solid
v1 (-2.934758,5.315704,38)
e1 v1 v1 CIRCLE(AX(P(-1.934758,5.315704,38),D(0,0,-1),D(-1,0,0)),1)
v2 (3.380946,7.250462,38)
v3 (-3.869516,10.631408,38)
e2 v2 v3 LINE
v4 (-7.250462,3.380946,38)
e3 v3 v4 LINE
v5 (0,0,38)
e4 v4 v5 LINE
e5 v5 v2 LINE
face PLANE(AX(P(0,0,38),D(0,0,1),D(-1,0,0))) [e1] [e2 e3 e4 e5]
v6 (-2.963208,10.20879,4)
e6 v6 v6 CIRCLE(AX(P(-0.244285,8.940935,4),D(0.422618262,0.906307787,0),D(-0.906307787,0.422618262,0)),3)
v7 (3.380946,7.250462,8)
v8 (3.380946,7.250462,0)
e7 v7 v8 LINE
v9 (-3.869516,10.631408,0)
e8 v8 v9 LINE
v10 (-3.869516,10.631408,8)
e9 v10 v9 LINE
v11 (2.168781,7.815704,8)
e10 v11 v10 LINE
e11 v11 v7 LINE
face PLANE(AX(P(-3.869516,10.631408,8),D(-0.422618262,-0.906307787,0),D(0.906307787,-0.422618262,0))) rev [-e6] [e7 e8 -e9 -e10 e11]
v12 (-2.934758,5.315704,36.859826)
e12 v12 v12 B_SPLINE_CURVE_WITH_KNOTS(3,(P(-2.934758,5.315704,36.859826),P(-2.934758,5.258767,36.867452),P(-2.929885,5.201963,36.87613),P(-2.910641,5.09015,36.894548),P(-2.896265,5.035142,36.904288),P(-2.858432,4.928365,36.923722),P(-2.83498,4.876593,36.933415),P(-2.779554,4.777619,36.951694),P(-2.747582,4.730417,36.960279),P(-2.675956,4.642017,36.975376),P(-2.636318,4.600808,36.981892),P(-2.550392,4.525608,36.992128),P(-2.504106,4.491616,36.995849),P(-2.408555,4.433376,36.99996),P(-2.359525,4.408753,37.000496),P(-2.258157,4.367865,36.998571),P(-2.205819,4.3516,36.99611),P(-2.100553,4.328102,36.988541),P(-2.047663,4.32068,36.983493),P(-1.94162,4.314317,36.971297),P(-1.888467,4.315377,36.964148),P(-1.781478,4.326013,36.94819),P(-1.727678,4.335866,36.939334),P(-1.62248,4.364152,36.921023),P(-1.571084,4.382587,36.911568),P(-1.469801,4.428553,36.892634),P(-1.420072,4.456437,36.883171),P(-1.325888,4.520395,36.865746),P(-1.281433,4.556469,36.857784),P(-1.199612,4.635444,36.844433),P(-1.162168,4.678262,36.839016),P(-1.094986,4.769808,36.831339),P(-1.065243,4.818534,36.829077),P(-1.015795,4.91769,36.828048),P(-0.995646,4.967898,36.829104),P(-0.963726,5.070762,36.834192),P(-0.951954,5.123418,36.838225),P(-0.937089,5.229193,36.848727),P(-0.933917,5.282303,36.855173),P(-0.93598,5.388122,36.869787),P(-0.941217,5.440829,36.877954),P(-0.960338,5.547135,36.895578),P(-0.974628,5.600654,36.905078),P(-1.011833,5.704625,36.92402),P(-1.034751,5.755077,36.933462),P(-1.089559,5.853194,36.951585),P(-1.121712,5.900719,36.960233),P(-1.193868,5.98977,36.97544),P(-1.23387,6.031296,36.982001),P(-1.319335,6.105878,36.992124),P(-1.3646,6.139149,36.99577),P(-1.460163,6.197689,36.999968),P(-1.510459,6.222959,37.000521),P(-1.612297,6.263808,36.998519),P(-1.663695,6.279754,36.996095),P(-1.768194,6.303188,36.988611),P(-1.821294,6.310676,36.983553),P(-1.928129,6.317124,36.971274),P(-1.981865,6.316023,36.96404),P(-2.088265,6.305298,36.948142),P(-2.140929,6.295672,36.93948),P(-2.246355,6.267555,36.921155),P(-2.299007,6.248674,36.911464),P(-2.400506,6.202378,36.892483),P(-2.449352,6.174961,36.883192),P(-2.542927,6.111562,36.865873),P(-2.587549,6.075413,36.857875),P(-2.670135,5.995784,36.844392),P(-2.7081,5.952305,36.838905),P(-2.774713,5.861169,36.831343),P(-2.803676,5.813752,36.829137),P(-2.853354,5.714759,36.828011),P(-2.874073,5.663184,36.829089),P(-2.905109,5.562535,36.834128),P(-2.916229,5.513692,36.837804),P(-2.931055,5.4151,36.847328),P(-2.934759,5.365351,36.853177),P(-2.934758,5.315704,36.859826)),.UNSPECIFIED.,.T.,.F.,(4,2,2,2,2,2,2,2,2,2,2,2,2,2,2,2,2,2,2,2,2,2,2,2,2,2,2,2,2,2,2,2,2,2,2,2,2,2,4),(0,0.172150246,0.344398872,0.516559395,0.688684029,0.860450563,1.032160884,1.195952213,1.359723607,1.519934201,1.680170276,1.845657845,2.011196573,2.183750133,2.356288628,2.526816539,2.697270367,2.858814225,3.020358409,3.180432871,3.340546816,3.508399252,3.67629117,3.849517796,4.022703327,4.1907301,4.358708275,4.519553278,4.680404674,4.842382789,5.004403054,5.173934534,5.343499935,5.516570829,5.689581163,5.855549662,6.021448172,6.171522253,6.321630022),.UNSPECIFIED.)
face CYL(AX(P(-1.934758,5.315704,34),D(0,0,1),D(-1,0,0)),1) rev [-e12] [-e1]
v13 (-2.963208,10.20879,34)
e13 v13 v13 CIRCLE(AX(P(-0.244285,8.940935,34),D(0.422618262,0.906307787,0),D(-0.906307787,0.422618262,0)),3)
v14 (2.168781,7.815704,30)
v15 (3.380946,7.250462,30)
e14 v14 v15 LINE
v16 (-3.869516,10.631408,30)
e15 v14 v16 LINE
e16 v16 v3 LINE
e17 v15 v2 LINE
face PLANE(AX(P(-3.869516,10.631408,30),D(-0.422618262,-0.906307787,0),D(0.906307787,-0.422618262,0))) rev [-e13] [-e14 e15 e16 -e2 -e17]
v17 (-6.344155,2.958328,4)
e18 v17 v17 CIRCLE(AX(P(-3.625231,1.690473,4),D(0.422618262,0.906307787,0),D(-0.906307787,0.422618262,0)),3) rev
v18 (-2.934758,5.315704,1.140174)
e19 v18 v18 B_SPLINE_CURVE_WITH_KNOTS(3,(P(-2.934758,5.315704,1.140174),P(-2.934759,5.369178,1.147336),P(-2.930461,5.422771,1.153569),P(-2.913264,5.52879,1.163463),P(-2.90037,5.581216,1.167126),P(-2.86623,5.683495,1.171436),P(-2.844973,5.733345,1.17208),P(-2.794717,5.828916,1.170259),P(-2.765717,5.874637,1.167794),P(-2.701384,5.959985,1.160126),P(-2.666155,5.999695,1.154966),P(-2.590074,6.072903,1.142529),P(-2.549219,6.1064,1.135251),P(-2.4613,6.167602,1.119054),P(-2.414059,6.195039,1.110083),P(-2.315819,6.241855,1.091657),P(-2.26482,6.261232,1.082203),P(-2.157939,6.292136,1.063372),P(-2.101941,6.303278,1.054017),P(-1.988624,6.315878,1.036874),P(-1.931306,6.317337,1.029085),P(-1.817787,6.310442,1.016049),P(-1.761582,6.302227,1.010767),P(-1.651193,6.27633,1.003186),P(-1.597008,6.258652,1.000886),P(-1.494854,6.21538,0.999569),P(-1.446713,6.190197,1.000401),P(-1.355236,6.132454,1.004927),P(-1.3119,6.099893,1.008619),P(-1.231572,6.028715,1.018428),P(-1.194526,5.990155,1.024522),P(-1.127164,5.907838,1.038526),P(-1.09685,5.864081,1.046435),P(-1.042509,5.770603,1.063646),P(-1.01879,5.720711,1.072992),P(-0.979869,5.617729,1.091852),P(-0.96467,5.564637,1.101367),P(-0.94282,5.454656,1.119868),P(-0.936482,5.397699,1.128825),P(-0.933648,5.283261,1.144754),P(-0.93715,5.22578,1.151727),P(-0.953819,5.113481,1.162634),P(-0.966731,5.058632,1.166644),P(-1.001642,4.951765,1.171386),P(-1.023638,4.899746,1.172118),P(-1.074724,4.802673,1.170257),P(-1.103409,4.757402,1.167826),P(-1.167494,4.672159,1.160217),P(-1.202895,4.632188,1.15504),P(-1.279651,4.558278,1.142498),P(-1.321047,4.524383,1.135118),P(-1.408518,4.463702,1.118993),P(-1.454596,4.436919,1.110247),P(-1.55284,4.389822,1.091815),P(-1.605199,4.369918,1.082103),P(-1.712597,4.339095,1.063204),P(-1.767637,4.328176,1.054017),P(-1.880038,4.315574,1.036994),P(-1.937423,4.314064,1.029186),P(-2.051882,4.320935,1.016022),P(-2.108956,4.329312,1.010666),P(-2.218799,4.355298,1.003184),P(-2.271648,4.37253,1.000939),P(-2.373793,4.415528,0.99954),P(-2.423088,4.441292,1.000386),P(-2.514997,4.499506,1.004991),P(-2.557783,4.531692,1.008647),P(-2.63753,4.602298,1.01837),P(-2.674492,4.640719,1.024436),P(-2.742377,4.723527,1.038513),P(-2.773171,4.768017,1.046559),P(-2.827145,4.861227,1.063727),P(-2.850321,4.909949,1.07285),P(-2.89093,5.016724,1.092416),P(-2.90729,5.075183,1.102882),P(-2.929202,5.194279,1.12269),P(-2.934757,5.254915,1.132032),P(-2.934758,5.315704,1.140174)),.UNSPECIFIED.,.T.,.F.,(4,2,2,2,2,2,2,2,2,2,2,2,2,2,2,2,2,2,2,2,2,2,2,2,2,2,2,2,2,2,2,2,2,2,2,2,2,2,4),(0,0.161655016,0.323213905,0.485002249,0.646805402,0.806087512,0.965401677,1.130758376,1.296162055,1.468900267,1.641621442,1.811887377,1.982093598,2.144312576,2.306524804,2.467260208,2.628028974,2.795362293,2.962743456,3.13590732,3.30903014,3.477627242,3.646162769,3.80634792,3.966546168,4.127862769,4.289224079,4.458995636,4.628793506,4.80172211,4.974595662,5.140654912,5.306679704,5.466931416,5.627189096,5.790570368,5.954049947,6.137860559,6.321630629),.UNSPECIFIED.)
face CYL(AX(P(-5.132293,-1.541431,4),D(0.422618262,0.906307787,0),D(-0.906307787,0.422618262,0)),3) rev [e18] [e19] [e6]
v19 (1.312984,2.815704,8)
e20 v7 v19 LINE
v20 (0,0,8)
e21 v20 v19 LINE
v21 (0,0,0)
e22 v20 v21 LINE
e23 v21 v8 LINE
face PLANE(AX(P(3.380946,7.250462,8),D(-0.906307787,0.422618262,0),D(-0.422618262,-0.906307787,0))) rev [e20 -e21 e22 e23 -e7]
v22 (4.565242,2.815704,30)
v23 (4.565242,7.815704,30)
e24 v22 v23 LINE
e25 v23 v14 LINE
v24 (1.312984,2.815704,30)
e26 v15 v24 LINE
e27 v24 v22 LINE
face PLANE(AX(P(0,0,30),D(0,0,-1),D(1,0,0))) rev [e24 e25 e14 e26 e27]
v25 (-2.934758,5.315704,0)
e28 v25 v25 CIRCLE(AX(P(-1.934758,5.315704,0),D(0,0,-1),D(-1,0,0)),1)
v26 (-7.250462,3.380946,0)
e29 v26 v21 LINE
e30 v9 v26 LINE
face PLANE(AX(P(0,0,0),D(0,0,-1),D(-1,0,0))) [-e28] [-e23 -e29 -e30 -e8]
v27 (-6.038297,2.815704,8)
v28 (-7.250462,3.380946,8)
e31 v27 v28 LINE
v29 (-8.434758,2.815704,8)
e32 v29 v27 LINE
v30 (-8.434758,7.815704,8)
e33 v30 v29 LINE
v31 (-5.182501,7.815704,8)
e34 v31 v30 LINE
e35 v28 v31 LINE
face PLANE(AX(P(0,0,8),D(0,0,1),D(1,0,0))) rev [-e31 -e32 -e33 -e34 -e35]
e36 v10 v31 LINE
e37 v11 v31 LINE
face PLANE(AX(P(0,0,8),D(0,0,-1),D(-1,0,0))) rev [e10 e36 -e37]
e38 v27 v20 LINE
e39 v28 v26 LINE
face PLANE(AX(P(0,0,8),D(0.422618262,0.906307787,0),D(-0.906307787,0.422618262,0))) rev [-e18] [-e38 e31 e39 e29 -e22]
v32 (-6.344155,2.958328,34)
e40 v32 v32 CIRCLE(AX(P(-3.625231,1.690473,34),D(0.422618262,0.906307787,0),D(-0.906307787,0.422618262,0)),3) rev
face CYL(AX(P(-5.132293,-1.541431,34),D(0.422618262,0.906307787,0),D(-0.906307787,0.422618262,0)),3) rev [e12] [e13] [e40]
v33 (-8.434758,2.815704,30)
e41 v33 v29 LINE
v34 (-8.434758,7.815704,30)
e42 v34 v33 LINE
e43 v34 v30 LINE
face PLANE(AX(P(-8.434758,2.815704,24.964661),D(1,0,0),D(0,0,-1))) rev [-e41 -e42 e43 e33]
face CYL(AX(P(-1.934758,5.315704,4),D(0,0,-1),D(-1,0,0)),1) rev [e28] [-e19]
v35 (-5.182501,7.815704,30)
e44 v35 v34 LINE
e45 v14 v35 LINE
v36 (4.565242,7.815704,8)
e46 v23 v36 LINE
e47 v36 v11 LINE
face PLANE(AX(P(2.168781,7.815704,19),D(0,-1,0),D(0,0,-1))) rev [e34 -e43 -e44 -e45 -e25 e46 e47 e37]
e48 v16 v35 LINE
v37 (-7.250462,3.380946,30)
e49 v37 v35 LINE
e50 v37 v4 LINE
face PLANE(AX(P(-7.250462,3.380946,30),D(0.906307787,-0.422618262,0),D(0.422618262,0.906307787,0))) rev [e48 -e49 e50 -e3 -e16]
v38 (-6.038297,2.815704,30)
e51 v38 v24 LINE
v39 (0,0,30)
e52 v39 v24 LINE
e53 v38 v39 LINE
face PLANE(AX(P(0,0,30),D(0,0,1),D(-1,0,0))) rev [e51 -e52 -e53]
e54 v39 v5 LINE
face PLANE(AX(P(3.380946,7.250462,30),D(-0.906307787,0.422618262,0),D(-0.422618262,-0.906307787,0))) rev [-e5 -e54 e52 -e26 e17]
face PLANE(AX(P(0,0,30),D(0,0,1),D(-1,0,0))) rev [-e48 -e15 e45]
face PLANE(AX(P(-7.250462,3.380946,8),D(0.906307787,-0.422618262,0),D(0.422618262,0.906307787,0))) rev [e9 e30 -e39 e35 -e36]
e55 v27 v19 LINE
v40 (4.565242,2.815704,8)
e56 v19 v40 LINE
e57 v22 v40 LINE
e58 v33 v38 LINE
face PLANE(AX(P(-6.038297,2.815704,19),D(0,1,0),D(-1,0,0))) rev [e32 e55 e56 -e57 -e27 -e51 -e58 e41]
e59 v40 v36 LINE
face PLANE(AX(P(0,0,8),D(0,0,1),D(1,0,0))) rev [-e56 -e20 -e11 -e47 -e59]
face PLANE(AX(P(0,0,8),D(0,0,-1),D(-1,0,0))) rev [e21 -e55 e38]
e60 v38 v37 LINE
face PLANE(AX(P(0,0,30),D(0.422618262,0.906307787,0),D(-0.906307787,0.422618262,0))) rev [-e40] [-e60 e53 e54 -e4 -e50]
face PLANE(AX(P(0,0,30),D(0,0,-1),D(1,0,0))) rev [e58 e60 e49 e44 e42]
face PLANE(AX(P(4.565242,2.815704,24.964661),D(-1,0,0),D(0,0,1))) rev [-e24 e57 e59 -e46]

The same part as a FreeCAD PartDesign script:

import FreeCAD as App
import Part
import Sketcher

V = App.Vector
Q = App.Units.Quantity

doc = App.newDocument("Part")
body = doc.addObject("PartDesign::Body", "Body")

# Sketch on XY plane
sketch1 = body.newObject("Sketcher::SketchObject", "Sketch")
sketch1.AttachmentSupport = (doc.getObject("XY_Plane"), [""])
sketch1.MapMode = "FlatFace"
sketch1.addGeometry([
    Part.LineSegment(V(-7, 3, 0), V(0, 0, 0)),
    Part.LineSegment(V(0, 0, 0), V(3, 7, 0)),
    Part.LineSegment(V(3, 7, 0), V(-4, 11, 0)),
    Part.LineSegment(V(-4, 11, 0), V(-7, 3, 0)),
], False)
sketch1.addConstraint([
    Sketcher.Constraint("Coincident", 0, 2, 1, 1),
    Sketcher.Constraint("Coincident", 1, 2, 2, 1),
    Sketcher.Constraint("Coincident", 2, 2, 3, 1),
    Sketcher.Constraint("Coincident", 3, 2, 0, 1),
    Sketcher.Constraint("Coincident", 0, 2, -1, 1),
    Sketcher.Constraint("Perpendicular", 0, 1),
    Sketcher.Constraint("Perpendicular", 1, 2),
    Sketcher.Constraint("Perpendicular", 2, 3),
    Sketcher.Constraint("Equal", 0, 1),
    Sketcher.Constraint("Angle", 0, Q("-25 deg")),
    Sketcher.Constraint("Distance", 0, Q("8 mm")),
])
pad1 = body.newObject("PartDesign::Pad", "Pad")
pad1.Profile = sketch1
pad1.Length = 8

# Sketch on XY plane
sketch2 = body.newObject("Sketcher::SketchObject", "Sketch001")
sketch2.AttachmentSupport = (doc.getObject("XY_Plane"), [""])
sketch2.MapMode = "FlatFace"
sketch2.AttachmentOffset = App.Placement(V(0, 0, 8), App.Rotation())
sketch2.addGeometry([
    Part.LineSegment(V(-6, 2.8, 0), V(1.3, 2.8, 0)),  # 0
    Part.LineSegment(V(1.3, 2.8, 0), V(3.4, 7.3, 0)),  # 1
    Part.LineSegment(V(3.4, 7.3, 0), V(2.2, 7.8, 0)),  # 2
    Part.LineSegment(V(2.2, 7.8, 0), V(-5.2, 7.8, 0)),  # 3
    Part.LineSegment(V(-5.2, 7.8, 0), V(-7.3, 3.4, 0)),  # 4
    Part.LineSegment(V(-7.3, 3.4, 0), V(-6, 2.8, 0)),  # 5
], False)
sketch2.addConstraint([
    Sketcher.Constraint("Coincident", 0, 2, 1, 1),
    Sketcher.Constraint("Coincident", 1, 2, 2, 1),
    Sketcher.Constraint("Coincident", 2, 2, 3, 1),
    Sketcher.Constraint("Coincident", 3, 2, 4, 1),
    Sketcher.Constraint("Coincident", 4, 2, 5, 1),
    Sketcher.Constraint("Coincident", 5, 2, 0, 1),
    Sketcher.Constraint("Horizontal", 0),
    Sketcher.Constraint("Horizontal", 3),
    Sketcher.Constraint("Perpendicular", 1, 2),
    Sketcher.Constraint("Perpendicular", 2, 4),
    Sketcher.Constraint("Perpendicular", 4, 5),
    Sketcher.Constraint("Equal", 0, 3),
    Sketcher.Constraint("Angle", 1, Q("65 deg")),
    Sketcher.Constraint("DistanceY", 0, 2, 2, 2, Q("5 mm")),
    Sketcher.Constraint("DistanceX", 0, 1, 0, 2, Q("7.351282 mm")),
    Sketcher.Constraint("DistanceX", 3, 2, -1, 1, Q("5.182501 mm")),
    Sketcher.Constraint("DistanceX", 0, 2, 1, 2, Q("2.067962 mm")),
    Sketcher.Constraint("DistanceY", -1, 1, 0, 2, Q("2.815704 mm")),
])
pad2 = body.newObject("PartDesign::Pad", "Pad001")
pad2.Profile = sketch2
pad2.Length = 11

# Sketch on XY plane
sketch3 = body.newObject("Sketcher::SketchObject", "Sketch002")
sketch3.AttachmentSupport = (doc.getObject("XY_Plane"), [""])
sketch3.MapMode = "FlatFace"
sketch3.AttachmentOffset = App.Placement(V(0, 0, 8), App.Rotation())
sketch3.addGeometry([
    Part.LineSegment(V(-5.2, 7.8, 0), V(-8.4, 7.8, 0)),  # 0
    Part.LineSegment(V(-8.4, 7.8, 0), V(-8.4, 2.8, 0)),  # 1
    Part.LineSegment(V(-8.4, 2.8, 0), V(-6, 2.8, 0)),  # 2
    Part.LineSegment(V(-6, 2.8, 0), V(-7.3, 3.4, 0)),  # 3
    Part.LineSegment(V(-7.3, 3.4, 0), V(-5.2, 7.8, 0)),  # 4
    Part.LineSegment(V(1.3, 2.8, 0), V(4.6, 2.8, 0)),  # 5
    Part.LineSegment(V(4.6, 2.8, 0), V(4.6, 7.8, 0)),  # 6
    Part.LineSegment(V(4.6, 7.8, 0), V(2.2, 7.8, 0)),  # 7
    Part.LineSegment(V(2.2, 7.8, 0), V(3.4, 7.3, 0)),  # 8
    Part.LineSegment(V(3.4, 7.3, 0), V(1.3, 2.8, 0)),  # 9
], False)
sketch3.addConstraint([
    Sketcher.Constraint("Coincident", 0, 2, 1, 1),
    Sketcher.Constraint("Coincident", 1, 2, 2, 1),
    Sketcher.Constraint("Coincident", 2, 2, 3, 1),
    Sketcher.Constraint("Coincident", 3, 2, 4, 1),
    Sketcher.Constraint("Coincident", 4, 2, 0, 1),
    Sketcher.Constraint("Coincident", 5, 2, 6, 1),
    Sketcher.Constraint("Coincident", 6, 2, 7, 1),
    Sketcher.Constraint("Coincident", 7, 2, 8, 1),
    Sketcher.Constraint("Coincident", 8, 2, 9, 1),
    Sketcher.Constraint("Coincident", 9, 2, 5, 1),
    Sketcher.Constraint("Horizontal", 0),
    Sketcher.Constraint("Vertical", 1),
    Sketcher.Constraint("Horizontal", 2),
    Sketcher.Constraint("Horizontal", 5),
    Sketcher.Constraint("Vertical", 6),
    Sketcher.Constraint("Horizontal", 7),
    Sketcher.Constraint("Perpendicular", 3, 4),
    Sketcher.Constraint("Perpendicular", 4, 8),
    Sketcher.Constraint("Perpendicular", 8, 9),
    Sketcher.Constraint("Horizontal", 2, 2, 5, 2),
    Sketcher.Constraint("Horizontal", 4, 2, 6, 2),
    Sketcher.Constraint("Equal", 0, 5),
    Sketcher.Constraint("Equal", 2, 7),
    Sketcher.Constraint("DistanceY", 1, 2, 1, 1, Q("5 mm")),
    Sketcher.Constraint("Angle", 3, Q("155 deg")),
    Sketcher.Constraint("DistanceX", 1, 2, 5, 2, Q("13 mm")),
    Sketcher.Constraint("DistanceX", 2, 1, 2, 2, Q("2.396461 mm")),
    Sketcher.Constraint("DistanceX", 4, 2, -1, 1, Q("5.182501 mm")),
    Sketcher.Constraint("DistanceX", 0, 2, 0, 1, Q("3.252257 mm")),
    Sketcher.Constraint("DistanceY", -1, 1, 0, 2, Q("7.815704 mm")),
])
pad3 = body.newObject("PartDesign::Pad", "Pad002")
pad3.Profile = sketch3
pad3.Length = 11

# Sketch on XY plane
sketch4 = body.newObject("Sketcher::SketchObject", "Sketch003")
sketch4.AttachmentSupport = (doc.getObject("XY_Plane"), [""])
sketch4.MapMode = "FlatFace"
sketch4.addGeometry(Part.Circle(V(-1.9, 5.3, 0), V(0, 0, 1), 1), False)
sketch4.addConstraint([
    Sketcher.Constraint("Diameter", 0, Q("2 mm")),
    Sketcher.Constraint("DistanceX", 0, 3, -1, 1, Q("1.934758 mm")),
    Sketcher.Constraint("DistanceY", -1, 1, 0, 3, Q("5.315704 mm")),
])
pocket1 = body.newObject("PartDesign::Pocket", "Pocket")
pocket1.Profile = sketch4
pocket1.Length = 4
pocket1.Reversed = True
body2 = doc.addObject("PartDesign::Body", "Body001")
doc.recompute()

body2.BaseFeature = body
doc.recompute()

mirroring = doc.addObject("Part::Mirroring", "Mirroring")
mirroring.Source = body
mirroring.Base = V(-1.934758, 5.315704, 19)
mirroring.Normal = V(0, 0, 1)
body3 = doc.addObject("PartDesign::Body", "Body002")
body3.BaseFeature = mirroring
boolean = body2.newObject("PartDesign::Boolean", "Boolean")
boolean.Type = "Fuse"
boolean.addObjects([body3])
doc.recompute()

# Sketch on an angled plane
sketch5 = body2.newObject("Sketcher::SketchObject", "Sketch004")
sketch5.Placement = App.Placement(V(3.380946, 7.250462, 0), App.Rotation(V(0.906307787, -0.422618262, 0), V(0, 0, -1), V(0.422618262, 0.906307787, 0), "ZXY"))
sketch5.addGeometry(Part.Circle(V(-4, -4, 0), V(0, 0, 1), 3), False)
sketch5.addConstraint([
    Sketcher.Constraint("Diameter", 0, Q("6 mm")),
    Sketcher.Constraint("DistanceX", 0, 3, -1, 1, Q("4 mm")),
    Sketcher.Constraint("DistanceY", 0, 3, -1, 1, Q("4 mm")),
])
pocket2 = body2.newObject("PartDesign::Pocket", "Pocket001")
pocket2.Profile = sketch5
pocket2.Length = 8

# Sketch on an angled plane
sketch6 = body2.newObject("Sketcher::SketchObject", "Sketch005")
sketch6.Placement = App.Placement(V(3.380946, 7.250462, 0), App.Rotation(V(0.906307787, -0.422618262, 0), V(0, 0, -1), V(0.422618262, 0.906307787, 0), "ZXY"))
sketch6.addGeometry(Part.Circle(V(-4, -34, 0), V(0, 0, 1), 3), False)
sketch6.addConstraint([
    Sketcher.Constraint("Diameter", 0, Q("6 mm")),
    Sketcher.Constraint("DistanceX", 0, 3, -1, 1, Q("4 mm")),
    Sketcher.Constraint("DistanceY", 0, 3, -1, 1, Q("34 mm")),
])
pocket3 = body2.newObject("PartDesign::Pocket", "Pocket002")
pocket3.Profile = sketch6
pocket3.Length = 8
mirroring.Visibility = False

doc.recompute()
